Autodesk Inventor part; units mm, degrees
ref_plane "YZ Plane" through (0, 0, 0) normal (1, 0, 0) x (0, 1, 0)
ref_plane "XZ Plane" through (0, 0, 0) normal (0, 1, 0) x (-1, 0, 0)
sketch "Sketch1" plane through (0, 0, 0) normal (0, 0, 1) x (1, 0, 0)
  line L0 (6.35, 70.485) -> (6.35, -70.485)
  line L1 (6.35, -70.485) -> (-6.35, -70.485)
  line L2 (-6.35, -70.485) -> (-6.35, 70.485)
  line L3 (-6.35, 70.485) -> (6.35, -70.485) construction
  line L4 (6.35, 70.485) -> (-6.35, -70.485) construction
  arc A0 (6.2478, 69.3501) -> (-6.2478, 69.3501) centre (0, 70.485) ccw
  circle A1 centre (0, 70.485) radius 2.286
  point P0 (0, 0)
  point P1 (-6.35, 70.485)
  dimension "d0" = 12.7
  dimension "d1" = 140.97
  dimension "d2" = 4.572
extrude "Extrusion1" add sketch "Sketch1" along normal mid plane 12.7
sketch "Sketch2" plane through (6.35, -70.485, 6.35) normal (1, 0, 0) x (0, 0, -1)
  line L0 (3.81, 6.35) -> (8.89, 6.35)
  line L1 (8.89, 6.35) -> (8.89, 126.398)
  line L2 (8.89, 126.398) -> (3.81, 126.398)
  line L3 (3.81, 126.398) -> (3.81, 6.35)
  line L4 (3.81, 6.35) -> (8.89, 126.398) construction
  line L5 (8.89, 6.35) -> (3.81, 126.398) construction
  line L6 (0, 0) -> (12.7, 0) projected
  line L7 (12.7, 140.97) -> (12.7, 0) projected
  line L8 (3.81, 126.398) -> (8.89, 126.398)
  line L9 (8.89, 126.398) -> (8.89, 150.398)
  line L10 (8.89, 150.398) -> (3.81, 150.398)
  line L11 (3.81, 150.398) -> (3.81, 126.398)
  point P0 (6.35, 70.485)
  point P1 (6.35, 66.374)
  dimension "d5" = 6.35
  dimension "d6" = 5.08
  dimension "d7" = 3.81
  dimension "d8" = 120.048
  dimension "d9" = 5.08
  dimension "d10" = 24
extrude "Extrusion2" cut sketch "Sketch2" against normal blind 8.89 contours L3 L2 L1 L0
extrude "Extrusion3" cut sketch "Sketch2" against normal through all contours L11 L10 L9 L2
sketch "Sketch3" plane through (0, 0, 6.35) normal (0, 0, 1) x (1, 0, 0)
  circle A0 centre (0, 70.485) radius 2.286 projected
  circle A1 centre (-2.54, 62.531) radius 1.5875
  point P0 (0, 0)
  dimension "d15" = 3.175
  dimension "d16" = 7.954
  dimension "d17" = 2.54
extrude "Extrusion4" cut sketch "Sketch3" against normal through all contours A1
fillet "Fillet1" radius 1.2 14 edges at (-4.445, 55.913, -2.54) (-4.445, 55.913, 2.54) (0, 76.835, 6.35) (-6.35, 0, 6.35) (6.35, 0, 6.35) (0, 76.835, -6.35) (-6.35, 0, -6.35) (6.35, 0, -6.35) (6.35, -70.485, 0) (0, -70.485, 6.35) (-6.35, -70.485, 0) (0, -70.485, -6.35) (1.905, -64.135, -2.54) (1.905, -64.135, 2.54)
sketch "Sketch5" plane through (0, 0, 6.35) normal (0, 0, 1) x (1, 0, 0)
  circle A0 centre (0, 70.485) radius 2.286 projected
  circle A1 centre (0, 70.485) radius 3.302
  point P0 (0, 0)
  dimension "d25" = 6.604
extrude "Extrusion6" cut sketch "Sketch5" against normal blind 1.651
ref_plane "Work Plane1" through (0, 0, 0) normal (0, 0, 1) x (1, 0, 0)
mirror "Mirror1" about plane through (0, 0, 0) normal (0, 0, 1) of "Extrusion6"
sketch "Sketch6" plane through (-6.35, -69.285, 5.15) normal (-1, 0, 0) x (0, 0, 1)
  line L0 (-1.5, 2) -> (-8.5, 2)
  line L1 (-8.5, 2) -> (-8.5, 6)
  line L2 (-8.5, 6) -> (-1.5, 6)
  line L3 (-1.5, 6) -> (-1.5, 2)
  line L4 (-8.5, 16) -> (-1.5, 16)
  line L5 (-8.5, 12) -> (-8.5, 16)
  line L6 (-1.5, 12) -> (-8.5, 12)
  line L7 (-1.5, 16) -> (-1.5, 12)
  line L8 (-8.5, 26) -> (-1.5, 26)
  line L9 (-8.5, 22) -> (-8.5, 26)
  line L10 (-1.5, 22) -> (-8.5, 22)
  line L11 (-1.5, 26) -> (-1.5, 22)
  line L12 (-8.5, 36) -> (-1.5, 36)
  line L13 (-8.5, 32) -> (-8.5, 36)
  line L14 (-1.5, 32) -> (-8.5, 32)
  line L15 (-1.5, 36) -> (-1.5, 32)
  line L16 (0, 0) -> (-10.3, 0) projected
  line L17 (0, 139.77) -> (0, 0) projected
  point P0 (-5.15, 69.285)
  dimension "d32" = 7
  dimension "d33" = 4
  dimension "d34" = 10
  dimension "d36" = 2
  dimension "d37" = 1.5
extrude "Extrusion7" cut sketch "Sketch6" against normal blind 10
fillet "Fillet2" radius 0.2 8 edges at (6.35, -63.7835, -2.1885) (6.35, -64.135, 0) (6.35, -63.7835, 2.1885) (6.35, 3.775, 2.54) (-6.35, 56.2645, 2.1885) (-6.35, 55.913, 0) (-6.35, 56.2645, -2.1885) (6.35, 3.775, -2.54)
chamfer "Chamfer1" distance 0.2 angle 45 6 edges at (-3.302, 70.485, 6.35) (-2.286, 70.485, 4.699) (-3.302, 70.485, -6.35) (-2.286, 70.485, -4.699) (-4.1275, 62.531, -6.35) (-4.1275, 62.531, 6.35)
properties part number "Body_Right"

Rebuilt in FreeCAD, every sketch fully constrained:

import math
import FreeCAD as App
import Part
import Sketcher
from FreeCAD import Vector
Q = App.Units.Quantity


def edges_at(feature, points):
    """Names of the edges that pass closest to the given points."""
    edges = feature.Shape.Edges
    near = lambda p: min(range(len(edges)), key=lambda i: edges[i].distToShape(Part.Vertex(*p))[0])
    return sorted({f"Edge{near(p) + 1}" for p in points})

doc = App.newDocument("Part")
params = doc.addObject("Spreadsheet::Sheet", "Params")
for row, (alias, value) in enumerate([
    ("sketch1_diameter", "0.18 in"),
    ("sketch1_radius", "0.25 in"),
    ("sketch1_height", "5.55 in"),
    ("pad1_length", "0.5 in"),
    ("sketch2_height", "0.2 in"),
    ("pocket1_length", "0.35 in"),
    ("sketch3_height", "0.2 in"),
    ("sketch4_diameter", "0.125 in"),
    ("fillet_radius", "1.2 mm"),
    ("sketch5_diameter", "0.26 in"),
    ("sketch5_diameter2", "0.18 in"),
    ("pocket4_length", "0.065 in"),
    ("pocket5_length", "0.3937008 in"),
    ("fillet2_radius", "0.2 mm"),
    ("chamfer_size", "0.2 mm"),
], start=1):
    params.set(f"A{row}", alias)
    params.set(f"B{row}", "=" + value)
    params.setAlias(f"B{row}", alias)

body = doc.addObject("PartDesign::Body", "Body")

sketch1 = body.newObject("Sketcher::SketchObject", "Sketch")
sketch1.AttachmentSupport = (doc.getObject("XY_Plane"), [""])
sketch1.MapMode = "FlatFace"
sketch1.addGeometry([
    Part.LineSegment(Vector(6.3, -70.5, 0), Vector(6.3, 70.5, 0)),
    Part.ArcOfCircle(Part.Circle(Vector(0, 70.5, 0), Vector(0, 0, 1), 6.4), math.radians(0), math.radians(180)),
    Part.LineSegment(Vector(-6.3, 70.5, 0), Vector(-6.3, -70.5, 0)),
    Part.LineSegment(Vector(-6.3, -70.5, 0), Vector(6.3, -70.5, 0)),
    Part.Circle(Vector(0, 70.5, 0), Vector(0, 0, 1), 2.3),
], False)
sketch1.addConstraint([
    Sketcher.Constraint("Tangent", 0, 2, 1, 1),
    Sketcher.Constraint("Tangent", 1, 2, 2, 1),
    Sketcher.Constraint("Coincident", 2, 2, 3, 1),
    Sketcher.Constraint("Coincident", 3, 2, 0, 1),
    Sketcher.Constraint("Vertical", 0),
    Sketcher.Constraint("Vertical", 2),
    Sketcher.Constraint("Horizontal", 3),
    Sketcher.Constraint("Coincident", 4, 3, 1, 3),
    Sketcher.Constraint("Symmetric", 0, 2, 2, 2, -1, 1),
    Sketcher.Constraint("Diameter", 4, Q("0.18 in")),
    Sketcher.Constraint("Radius", 1, Q("0.25 in")),
    Sketcher.Constraint("DistanceY", 0, 1, 0, 2, Q("5.55 in")),
])
sketch1.setExpression("Constraints[9]", "Params.sketch1_diameter")
sketch1.setExpression("Constraints[10]", "Params.sketch1_radius")
sketch1.setExpression("Constraints[11]", "Params.sketch1_height")
pad1 = body.newObject("PartDesign::Pad", "Pad")
pad1.Profile = sketch1
pad1.setExpression("Length", "Params.pad1_length")
pad1.Midplane = True

sketch2 = body.newObject("Sketcher::SketchObject", "Sketch001")
sketch2.AttachmentSupport = (doc.getObject("YZ_Plane"), [""])
sketch2.MapMode = "FlatFace"
sketch2.AttachmentOffset = App.Placement(Vector(0, 0, 0.25 * 25.4), App.Rotation())
sketch2.addGeometry([
    Part.LineSegment(Vector(56, 3, 0), Vector(-64, 3, 0)),
    Part.LineSegment(Vector(-64, 3, 0), Vector(-64, -3, 0)),
    Part.LineSegment(Vector(-64, -3, 0), Vector(56, -3, 0)),
    Part.LineSegment(Vector(56, -3, 0), Vector(56, 3, 0)),
], False)
sketch2.addConstraint([
    Sketcher.Constraint("Coincident", 0, 2, 1, 1),
    Sketcher.Constraint("Coincident", 1, 2, 2, 1),
    Sketcher.Constraint("Coincident", 2, 2, 3, 1),
    Sketcher.Constraint("Coincident", 3, 2, 0, 1),
    Sketcher.Constraint("Horizontal", 0),
    Sketcher.Constraint("Vertical", 1),
    Sketcher.Constraint("Horizontal", 2),
    Sketcher.Constraint("Vertical", 3),
    Sketcher.Constraint("DistanceY", 1, 2, 1, 1, Q("0.2 in")),
    Sketcher.Constraint("DistanceX", 0, 2, 0, 1, Q("4.7263 in")),
    Sketcher.Constraint("DistanceY", -1, 1, 0, 2, Q("0.1 in")),
    Sketcher.Constraint("DistanceX", 0, 2, -1, 1, Q("2.525 in")),
])
sketch2.setExpression("Constraints[8]", "Params.sketch2_height")
pocket1 = body.newObject("PartDesign::Pocket", "Pocket")
pocket1.Profile = sketch2
pocket1.setExpression("Length", "Params.pocket1_length")

sketch3 = body.newObject("Sketcher::SketchObject", "Sketch002")
sketch3.AttachmentSupport = (doc.getObject("YZ_Plane"), [""])
sketch3.MapMode = "FlatFace"
sketch3.AttachmentOffset = App.Placement(Vector(0, 0, 0.25 * 25.4), App.Rotation())
sketch3.addGeometry([
    Part.LineSegment(Vector(80, 3, 0), Vector(56, 3, 0)),
    Part.LineSegment(Vector(56, 3, 0), Vector(56, -3, 0)),
    Part.LineSegment(Vector(56, -3, 0), Vector(80, -3, 0)),
    Part.LineSegment(Vector(80, -3, 0), Vector(80, 3, 0)),
], False)
sketch3.addConstraint([
    Sketcher.Constraint("Coincident", 0, 2, 1, 1),
    Sketcher.Constraint("Coincident", 1, 2, 2, 1),
    Sketcher.Constraint("Coincident", 2, 2, 3, 1),
    Sketcher.Constraint("Coincident", 3, 2, 0, 1),
    Sketcher.Constraint("Horizontal", 0),
    Sketcher.Constraint("Vertical", 1),
    Sketcher.Constraint("Horizontal", 2),
    Sketcher.Constraint("Vertical", 3),
    Sketcher.Constraint("DistanceY", 1, 2, 1, 1, Q("0.2 in")),
    Sketcher.Constraint("DistanceX", 0, 2, 0, 1, Q("24 mm")),
    Sketcher.Constraint("DistanceY", -1, 1, 0, 2, Q("0.1 in")),
    Sketcher.Constraint("DistanceX", -1, 1, 0, 2, Q("2.2013 in")),
])
sketch3.setExpression("Constraints[8]", "Params.sketch3_height")
pocket2 = body.newObject("PartDesign::Pocket", "Pocket001")
pocket2.Profile = sketch3
pocket2.Type = "ThroughAll"

sketch4 = body.newObject("Sketcher::SketchObject", "Sketch003")
sketch4.AttachmentSupport = (doc.getObject("XY_Plane"), [""])
sketch4.MapMode = "FlatFace"
sketch4.AttachmentOffset = App.Placement(Vector(0, 0, 0.25 * 25.4), App.Rotation())
sketch4.addGeometry(Part.Circle(Vector(-2.5, 62.5, 0), Vector(0, 0, 1), 1.6), False)
sketch4.addConstraint([
    Sketcher.Constraint("Diameter", 0, Q("0.125 in")),
    Sketcher.Constraint("DistanceX", 0, 3, -1, 1, Q("0.1 in")),
    Sketcher.Constraint("DistanceY", -1, 1, 0, 3, Q("62.531 mm")),
])
sketch4.setExpression("Constraints[0]", "Params.sketch4_diameter")
pocket3 = body.newObject("PartDesign::Pocket", "Pocket002")
pocket3.Profile = sketch4
pocket3.Type = "ThroughAll"
doc.recompute()

fillet = body.newObject("PartDesign::Fillet", "Fillet")
fillet.Base = (pocket3, edges_at(pocket3, [
    (-4.445, 55.913, -2.54),
    (-4.445, 55.913, 2.54),
    (0, 76.835, 6.35),
    (-6.35, 0, 6.35),
    (6.35, 0, 6.35),
    (0, 76.835, -6.35),
    (-6.35, 0, -6.35),
    (6.35, 0, -6.35),
    (6.35, -70.485, 0),
    (0, -70.485, 6.35),
    (-6.35, -70.485, 0),
    (0, -70.485, -6.35),
    (1.905, -64.135, -2.54),
    (1.905, -64.135, 2.54),
]))
fillet.setExpression("Radius", "Params.fillet_radius")

sketch5 = body.newObject("Sketcher::SketchObject", "Sketch004")
sketch5.AttachmentSupport = (doc.getObject("XY_Plane"), [""])
sketch5.MapMode = "FlatFace"
sketch5.AttachmentOffset = App.Placement(Vector(0, 0, 0.25 * 25.4), App.Rotation())
sketch5.addGeometry([
    Part.Circle(Vector(0, 70.5, 0), Vector(0, 0, 1), 3.3),
    Part.Circle(Vector(0, 70.5, 0), Vector(0, 0, 1), 2.3),
], False)
sketch5.addConstraint([
    Sketcher.Constraint("Coincident", 1, 3, 0, 3),
    Sketcher.Constraint("PointOnObject", 0, 3, -2),
    Sketcher.Constraint("Diameter", 0, Q("0.26 in")),
    Sketcher.Constraint("Diameter", 1, Q("0.18 in")),
    Sketcher.Constraint("DistanceY", -1, 1, 0, 3, Q("2.775 in")),
])
sketch5.setExpression("Constraints[2]", "Params.sketch5_diameter")
sketch5.setExpression("Constraints[3]", "Params.sketch5_diameter2")
pocket4 = body.newObject("PartDesign::Pocket", "Pocket003")
pocket4.Profile = sketch5
pocket4.setExpression("Length", "Params.pocket4_length")
doc.recompute()

mirrored = body.newObject("PartDesign::Mirrored", "Mirrored")
mirrored.Originals = [pocket4]
mirrored.MirrorPlane = (doc.getObject("XY_Plane"), [""])
body.Tip = mirrored

sketch6 = body.newObject("Sketcher::SketchObject", "Sketch005")
sketch6.AttachmentSupport = (doc.getObject("YZ_Plane"), [""])
sketch6.MapMode = "FlatFace"
sketch6.AttachmentOffset = App.Placement(Vector(0, 0, -0.25 * 25.4), App.Rotation())
sketch6.addGeometry([
    Part.LineSegment(Vector(-67.3, -3.4, 0), Vector(-67.3, 3.6, 0)),
    Part.LineSegment(Vector(-67.3, 3.6, 0), Vector(-63.3, 3.6, 0)),
    Part.LineSegment(Vector(-63.3, 3.6, 0), Vector(-63.3, -3.4, 0)),
    Part.LineSegment(Vector(-63.3, -3.4, 0), Vector(-67.3, -3.4, 0)),
    Part.LineSegment(Vector(-53.3, 3.6, 0), Vector(-53.3, -3.4, 0)),
    Part.LineSegment(Vector(-53.3, -3.4, 0), Vector(-57.3, -3.4, 0)),
    Part.LineSegment(Vector(-57.3, -3.4, 0), Vector(-57.3, 3.6, 0)),
    Part.LineSegment(Vector(-57.3, 3.6, 0), Vector(-53.3, 3.6, 0)),
    Part.LineSegment(Vector(-43.3, 3.6, 0), Vector(-43.3, -3.4, 0)),
    Part.LineSegment(Vector(-43.3, -3.4, 0), Vector(-47.3, -3.4, 0)),
    Part.LineSegment(Vector(-47.3, -3.4, 0), Vector(-47.3, 3.6, 0)),
    Part.LineSegment(Vector(-47.3, 3.6, 0), Vector(-43.3, 3.6, 0)),
    Part.LineSegment(Vector(-33.3, 3.6, 0), Vector(-33.3, -3.4, 0)),
    Part.LineSegment(Vector(-33.3, -3.4, 0), Vector(-37.3, -3.4, 0)),
    Part.LineSegment(Vector(-37.3, -3.4, 0), Vector(-37.3, 3.6, 0)),
    Part.LineSegment(Vector(-37.3, 3.6, 0), Vector(-33.3, 3.6, 0)),
], False)
sketch6.addConstraint([
    Sketcher.Constraint("Coincident", 0, 2, 1, 1),
    Sketcher.Constraint("Coincident", 1, 2, 2, 1),
    Sketcher.Constraint("Coincident", 2, 2, 3, 1),
    Sketcher.Constraint("Coincident", 3, 2, 0, 1),
    Sketcher.Constraint("Coincident", 4, 2, 5, 1),
    Sketcher.Constraint("Coincident", 5, 2, 6, 1),
    Sketcher.Constraint("Coincident", 6, 2, 7, 1),
    Sketcher.Constraint("Coincident", 7, 2, 4, 1),
    Sketcher.Constraint("Coincident", 8, 2, 9, 1),
    Sketcher.Constraint("Coincident", 9, 2, 10, 1),
    Sketcher.Constraint("Coincident", 10, 2, 11, 1),
    Sketcher.Constraint("Coincident", 11, 2, 8, 1),
    Sketcher.Constraint("Coincident", 12, 2, 13, 1),
    Sketcher.Constraint("Coincident", 13, 2, 14, 1),
    Sketcher.Constraint("Coincident", 14, 2, 15, 1),
    Sketcher.Constraint("Coincident", 15, 2, 12, 1),
    Sketcher.Constraint("Vertical", 0),
    Sketcher.Constraint("Horizontal", 1),
    Sketcher.Constraint("Vertical", 2),
    Sketcher.Constraint("Horizontal", 3),
    Sketcher.Constraint("Vertical", 4),
    Sketcher.Constraint("Horizontal", 5),
    Sketcher.Constraint("Vertical", 6),
    Sketcher.Constraint("Horizontal", 7),
    Sketcher.Constraint("Vertical", 8),
    Sketcher.Constraint("Horizontal", 9),
    Sketcher.Constraint("Vertical", 10),
    Sketcher.Constraint("Horizontal", 11),
    Sketcher.Constraint("Vertical", 12),
    Sketcher.Constraint("Horizontal", 13),
    Sketcher.Constraint("Vertical", 14),
    Sketcher.Constraint("Horizontal", 15),
    Sketcher.Constraint("Horizontal", 3, 2, 4, 2),
    Sketcher.Constraint("Horizontal", 1, 2, 6, 2),
    Sketcher.Constraint("Horizontal", 5, 2, 8, 2),
    Sketcher.Constraint("Horizontal", 7, 2, 10, 2),
    Sketcher.Constraint("Horizontal", 9, 2, 12, 2),
    Sketcher.Constraint("Horizontal", 11, 2, 14, 2),
    Sketcher.Constraint("Equal", 3, 5),
    Sketcher.Constraint("Equal", 7, 9),
    Sketcher.Constraint("Equal", 11, 13),
    Sketcher.Constraint("DistanceY", 0, 1, 0, 2, Q("0.2756 in")),
    Sketcher.Constraint("DistanceX", 1, 1, 1, 2, Q("4 mm")),
    Sketcher.Constraint("DistanceX", 2, 2, 4, 2, Q("0.3937 in")),
    Sketcher.Constraint("DistanceX", 4, 2, 8, 2, Q("0.3937 in")),
    Sketcher.Constraint("DistanceX", 8, 2, 12, 2, Q("0.3937 in")),
    Sketcher.Constraint("DistanceY", -1, 1, 0, 2, Q("0.1437 in")),
    Sketcher.Constraint("DistanceX", 0, 2, -1, 1, Q("67.285 mm")),
])
pocket5 = body.newObject("PartDesign::Pocket", "Pocket004")
pocket5.Profile = sketch6
pocket5.setExpression("Length", "Params.pocket5_length")
pocket5.Reversed = True
doc.recompute()

fillet2 = body.newObject("PartDesign::Fillet", "Fillet001")
fillet2.Base = (pocket5, edges_at(pocket5, [
    (6.35, -63.783, -2.188),
    (6.35, -64.135, 0),
    (6.35, -63.783, 2.188),
    (6.35, 3.775, 2.54),
    (-6.35, 56.264, 2.188),
    (-6.35, 55.913, 0),
    (-6.35, 56.264, -2.188),
    (6.35, 3.775, -2.54),
]))
fillet2.setExpression("Radius", "Params.fillet2_radius")
doc.recompute()

chamfer = body.newObject("PartDesign::Chamfer", "Chamfer")
chamfer.Base = (fillet2, edges_at(fillet2, [
    (-3.302, 70.485, 6.35),
    (-2.286, 70.485, 4.699),
    (-3.302, 70.485, -6.35),
    (-2.286, 70.485, -4.699),
    (-4.128, 62.531, -6.35),
    (-4.128, 62.531, 6.35),
]))
chamfer.setExpression("Size", "Params.chamfer_size")

doc.recompute()
